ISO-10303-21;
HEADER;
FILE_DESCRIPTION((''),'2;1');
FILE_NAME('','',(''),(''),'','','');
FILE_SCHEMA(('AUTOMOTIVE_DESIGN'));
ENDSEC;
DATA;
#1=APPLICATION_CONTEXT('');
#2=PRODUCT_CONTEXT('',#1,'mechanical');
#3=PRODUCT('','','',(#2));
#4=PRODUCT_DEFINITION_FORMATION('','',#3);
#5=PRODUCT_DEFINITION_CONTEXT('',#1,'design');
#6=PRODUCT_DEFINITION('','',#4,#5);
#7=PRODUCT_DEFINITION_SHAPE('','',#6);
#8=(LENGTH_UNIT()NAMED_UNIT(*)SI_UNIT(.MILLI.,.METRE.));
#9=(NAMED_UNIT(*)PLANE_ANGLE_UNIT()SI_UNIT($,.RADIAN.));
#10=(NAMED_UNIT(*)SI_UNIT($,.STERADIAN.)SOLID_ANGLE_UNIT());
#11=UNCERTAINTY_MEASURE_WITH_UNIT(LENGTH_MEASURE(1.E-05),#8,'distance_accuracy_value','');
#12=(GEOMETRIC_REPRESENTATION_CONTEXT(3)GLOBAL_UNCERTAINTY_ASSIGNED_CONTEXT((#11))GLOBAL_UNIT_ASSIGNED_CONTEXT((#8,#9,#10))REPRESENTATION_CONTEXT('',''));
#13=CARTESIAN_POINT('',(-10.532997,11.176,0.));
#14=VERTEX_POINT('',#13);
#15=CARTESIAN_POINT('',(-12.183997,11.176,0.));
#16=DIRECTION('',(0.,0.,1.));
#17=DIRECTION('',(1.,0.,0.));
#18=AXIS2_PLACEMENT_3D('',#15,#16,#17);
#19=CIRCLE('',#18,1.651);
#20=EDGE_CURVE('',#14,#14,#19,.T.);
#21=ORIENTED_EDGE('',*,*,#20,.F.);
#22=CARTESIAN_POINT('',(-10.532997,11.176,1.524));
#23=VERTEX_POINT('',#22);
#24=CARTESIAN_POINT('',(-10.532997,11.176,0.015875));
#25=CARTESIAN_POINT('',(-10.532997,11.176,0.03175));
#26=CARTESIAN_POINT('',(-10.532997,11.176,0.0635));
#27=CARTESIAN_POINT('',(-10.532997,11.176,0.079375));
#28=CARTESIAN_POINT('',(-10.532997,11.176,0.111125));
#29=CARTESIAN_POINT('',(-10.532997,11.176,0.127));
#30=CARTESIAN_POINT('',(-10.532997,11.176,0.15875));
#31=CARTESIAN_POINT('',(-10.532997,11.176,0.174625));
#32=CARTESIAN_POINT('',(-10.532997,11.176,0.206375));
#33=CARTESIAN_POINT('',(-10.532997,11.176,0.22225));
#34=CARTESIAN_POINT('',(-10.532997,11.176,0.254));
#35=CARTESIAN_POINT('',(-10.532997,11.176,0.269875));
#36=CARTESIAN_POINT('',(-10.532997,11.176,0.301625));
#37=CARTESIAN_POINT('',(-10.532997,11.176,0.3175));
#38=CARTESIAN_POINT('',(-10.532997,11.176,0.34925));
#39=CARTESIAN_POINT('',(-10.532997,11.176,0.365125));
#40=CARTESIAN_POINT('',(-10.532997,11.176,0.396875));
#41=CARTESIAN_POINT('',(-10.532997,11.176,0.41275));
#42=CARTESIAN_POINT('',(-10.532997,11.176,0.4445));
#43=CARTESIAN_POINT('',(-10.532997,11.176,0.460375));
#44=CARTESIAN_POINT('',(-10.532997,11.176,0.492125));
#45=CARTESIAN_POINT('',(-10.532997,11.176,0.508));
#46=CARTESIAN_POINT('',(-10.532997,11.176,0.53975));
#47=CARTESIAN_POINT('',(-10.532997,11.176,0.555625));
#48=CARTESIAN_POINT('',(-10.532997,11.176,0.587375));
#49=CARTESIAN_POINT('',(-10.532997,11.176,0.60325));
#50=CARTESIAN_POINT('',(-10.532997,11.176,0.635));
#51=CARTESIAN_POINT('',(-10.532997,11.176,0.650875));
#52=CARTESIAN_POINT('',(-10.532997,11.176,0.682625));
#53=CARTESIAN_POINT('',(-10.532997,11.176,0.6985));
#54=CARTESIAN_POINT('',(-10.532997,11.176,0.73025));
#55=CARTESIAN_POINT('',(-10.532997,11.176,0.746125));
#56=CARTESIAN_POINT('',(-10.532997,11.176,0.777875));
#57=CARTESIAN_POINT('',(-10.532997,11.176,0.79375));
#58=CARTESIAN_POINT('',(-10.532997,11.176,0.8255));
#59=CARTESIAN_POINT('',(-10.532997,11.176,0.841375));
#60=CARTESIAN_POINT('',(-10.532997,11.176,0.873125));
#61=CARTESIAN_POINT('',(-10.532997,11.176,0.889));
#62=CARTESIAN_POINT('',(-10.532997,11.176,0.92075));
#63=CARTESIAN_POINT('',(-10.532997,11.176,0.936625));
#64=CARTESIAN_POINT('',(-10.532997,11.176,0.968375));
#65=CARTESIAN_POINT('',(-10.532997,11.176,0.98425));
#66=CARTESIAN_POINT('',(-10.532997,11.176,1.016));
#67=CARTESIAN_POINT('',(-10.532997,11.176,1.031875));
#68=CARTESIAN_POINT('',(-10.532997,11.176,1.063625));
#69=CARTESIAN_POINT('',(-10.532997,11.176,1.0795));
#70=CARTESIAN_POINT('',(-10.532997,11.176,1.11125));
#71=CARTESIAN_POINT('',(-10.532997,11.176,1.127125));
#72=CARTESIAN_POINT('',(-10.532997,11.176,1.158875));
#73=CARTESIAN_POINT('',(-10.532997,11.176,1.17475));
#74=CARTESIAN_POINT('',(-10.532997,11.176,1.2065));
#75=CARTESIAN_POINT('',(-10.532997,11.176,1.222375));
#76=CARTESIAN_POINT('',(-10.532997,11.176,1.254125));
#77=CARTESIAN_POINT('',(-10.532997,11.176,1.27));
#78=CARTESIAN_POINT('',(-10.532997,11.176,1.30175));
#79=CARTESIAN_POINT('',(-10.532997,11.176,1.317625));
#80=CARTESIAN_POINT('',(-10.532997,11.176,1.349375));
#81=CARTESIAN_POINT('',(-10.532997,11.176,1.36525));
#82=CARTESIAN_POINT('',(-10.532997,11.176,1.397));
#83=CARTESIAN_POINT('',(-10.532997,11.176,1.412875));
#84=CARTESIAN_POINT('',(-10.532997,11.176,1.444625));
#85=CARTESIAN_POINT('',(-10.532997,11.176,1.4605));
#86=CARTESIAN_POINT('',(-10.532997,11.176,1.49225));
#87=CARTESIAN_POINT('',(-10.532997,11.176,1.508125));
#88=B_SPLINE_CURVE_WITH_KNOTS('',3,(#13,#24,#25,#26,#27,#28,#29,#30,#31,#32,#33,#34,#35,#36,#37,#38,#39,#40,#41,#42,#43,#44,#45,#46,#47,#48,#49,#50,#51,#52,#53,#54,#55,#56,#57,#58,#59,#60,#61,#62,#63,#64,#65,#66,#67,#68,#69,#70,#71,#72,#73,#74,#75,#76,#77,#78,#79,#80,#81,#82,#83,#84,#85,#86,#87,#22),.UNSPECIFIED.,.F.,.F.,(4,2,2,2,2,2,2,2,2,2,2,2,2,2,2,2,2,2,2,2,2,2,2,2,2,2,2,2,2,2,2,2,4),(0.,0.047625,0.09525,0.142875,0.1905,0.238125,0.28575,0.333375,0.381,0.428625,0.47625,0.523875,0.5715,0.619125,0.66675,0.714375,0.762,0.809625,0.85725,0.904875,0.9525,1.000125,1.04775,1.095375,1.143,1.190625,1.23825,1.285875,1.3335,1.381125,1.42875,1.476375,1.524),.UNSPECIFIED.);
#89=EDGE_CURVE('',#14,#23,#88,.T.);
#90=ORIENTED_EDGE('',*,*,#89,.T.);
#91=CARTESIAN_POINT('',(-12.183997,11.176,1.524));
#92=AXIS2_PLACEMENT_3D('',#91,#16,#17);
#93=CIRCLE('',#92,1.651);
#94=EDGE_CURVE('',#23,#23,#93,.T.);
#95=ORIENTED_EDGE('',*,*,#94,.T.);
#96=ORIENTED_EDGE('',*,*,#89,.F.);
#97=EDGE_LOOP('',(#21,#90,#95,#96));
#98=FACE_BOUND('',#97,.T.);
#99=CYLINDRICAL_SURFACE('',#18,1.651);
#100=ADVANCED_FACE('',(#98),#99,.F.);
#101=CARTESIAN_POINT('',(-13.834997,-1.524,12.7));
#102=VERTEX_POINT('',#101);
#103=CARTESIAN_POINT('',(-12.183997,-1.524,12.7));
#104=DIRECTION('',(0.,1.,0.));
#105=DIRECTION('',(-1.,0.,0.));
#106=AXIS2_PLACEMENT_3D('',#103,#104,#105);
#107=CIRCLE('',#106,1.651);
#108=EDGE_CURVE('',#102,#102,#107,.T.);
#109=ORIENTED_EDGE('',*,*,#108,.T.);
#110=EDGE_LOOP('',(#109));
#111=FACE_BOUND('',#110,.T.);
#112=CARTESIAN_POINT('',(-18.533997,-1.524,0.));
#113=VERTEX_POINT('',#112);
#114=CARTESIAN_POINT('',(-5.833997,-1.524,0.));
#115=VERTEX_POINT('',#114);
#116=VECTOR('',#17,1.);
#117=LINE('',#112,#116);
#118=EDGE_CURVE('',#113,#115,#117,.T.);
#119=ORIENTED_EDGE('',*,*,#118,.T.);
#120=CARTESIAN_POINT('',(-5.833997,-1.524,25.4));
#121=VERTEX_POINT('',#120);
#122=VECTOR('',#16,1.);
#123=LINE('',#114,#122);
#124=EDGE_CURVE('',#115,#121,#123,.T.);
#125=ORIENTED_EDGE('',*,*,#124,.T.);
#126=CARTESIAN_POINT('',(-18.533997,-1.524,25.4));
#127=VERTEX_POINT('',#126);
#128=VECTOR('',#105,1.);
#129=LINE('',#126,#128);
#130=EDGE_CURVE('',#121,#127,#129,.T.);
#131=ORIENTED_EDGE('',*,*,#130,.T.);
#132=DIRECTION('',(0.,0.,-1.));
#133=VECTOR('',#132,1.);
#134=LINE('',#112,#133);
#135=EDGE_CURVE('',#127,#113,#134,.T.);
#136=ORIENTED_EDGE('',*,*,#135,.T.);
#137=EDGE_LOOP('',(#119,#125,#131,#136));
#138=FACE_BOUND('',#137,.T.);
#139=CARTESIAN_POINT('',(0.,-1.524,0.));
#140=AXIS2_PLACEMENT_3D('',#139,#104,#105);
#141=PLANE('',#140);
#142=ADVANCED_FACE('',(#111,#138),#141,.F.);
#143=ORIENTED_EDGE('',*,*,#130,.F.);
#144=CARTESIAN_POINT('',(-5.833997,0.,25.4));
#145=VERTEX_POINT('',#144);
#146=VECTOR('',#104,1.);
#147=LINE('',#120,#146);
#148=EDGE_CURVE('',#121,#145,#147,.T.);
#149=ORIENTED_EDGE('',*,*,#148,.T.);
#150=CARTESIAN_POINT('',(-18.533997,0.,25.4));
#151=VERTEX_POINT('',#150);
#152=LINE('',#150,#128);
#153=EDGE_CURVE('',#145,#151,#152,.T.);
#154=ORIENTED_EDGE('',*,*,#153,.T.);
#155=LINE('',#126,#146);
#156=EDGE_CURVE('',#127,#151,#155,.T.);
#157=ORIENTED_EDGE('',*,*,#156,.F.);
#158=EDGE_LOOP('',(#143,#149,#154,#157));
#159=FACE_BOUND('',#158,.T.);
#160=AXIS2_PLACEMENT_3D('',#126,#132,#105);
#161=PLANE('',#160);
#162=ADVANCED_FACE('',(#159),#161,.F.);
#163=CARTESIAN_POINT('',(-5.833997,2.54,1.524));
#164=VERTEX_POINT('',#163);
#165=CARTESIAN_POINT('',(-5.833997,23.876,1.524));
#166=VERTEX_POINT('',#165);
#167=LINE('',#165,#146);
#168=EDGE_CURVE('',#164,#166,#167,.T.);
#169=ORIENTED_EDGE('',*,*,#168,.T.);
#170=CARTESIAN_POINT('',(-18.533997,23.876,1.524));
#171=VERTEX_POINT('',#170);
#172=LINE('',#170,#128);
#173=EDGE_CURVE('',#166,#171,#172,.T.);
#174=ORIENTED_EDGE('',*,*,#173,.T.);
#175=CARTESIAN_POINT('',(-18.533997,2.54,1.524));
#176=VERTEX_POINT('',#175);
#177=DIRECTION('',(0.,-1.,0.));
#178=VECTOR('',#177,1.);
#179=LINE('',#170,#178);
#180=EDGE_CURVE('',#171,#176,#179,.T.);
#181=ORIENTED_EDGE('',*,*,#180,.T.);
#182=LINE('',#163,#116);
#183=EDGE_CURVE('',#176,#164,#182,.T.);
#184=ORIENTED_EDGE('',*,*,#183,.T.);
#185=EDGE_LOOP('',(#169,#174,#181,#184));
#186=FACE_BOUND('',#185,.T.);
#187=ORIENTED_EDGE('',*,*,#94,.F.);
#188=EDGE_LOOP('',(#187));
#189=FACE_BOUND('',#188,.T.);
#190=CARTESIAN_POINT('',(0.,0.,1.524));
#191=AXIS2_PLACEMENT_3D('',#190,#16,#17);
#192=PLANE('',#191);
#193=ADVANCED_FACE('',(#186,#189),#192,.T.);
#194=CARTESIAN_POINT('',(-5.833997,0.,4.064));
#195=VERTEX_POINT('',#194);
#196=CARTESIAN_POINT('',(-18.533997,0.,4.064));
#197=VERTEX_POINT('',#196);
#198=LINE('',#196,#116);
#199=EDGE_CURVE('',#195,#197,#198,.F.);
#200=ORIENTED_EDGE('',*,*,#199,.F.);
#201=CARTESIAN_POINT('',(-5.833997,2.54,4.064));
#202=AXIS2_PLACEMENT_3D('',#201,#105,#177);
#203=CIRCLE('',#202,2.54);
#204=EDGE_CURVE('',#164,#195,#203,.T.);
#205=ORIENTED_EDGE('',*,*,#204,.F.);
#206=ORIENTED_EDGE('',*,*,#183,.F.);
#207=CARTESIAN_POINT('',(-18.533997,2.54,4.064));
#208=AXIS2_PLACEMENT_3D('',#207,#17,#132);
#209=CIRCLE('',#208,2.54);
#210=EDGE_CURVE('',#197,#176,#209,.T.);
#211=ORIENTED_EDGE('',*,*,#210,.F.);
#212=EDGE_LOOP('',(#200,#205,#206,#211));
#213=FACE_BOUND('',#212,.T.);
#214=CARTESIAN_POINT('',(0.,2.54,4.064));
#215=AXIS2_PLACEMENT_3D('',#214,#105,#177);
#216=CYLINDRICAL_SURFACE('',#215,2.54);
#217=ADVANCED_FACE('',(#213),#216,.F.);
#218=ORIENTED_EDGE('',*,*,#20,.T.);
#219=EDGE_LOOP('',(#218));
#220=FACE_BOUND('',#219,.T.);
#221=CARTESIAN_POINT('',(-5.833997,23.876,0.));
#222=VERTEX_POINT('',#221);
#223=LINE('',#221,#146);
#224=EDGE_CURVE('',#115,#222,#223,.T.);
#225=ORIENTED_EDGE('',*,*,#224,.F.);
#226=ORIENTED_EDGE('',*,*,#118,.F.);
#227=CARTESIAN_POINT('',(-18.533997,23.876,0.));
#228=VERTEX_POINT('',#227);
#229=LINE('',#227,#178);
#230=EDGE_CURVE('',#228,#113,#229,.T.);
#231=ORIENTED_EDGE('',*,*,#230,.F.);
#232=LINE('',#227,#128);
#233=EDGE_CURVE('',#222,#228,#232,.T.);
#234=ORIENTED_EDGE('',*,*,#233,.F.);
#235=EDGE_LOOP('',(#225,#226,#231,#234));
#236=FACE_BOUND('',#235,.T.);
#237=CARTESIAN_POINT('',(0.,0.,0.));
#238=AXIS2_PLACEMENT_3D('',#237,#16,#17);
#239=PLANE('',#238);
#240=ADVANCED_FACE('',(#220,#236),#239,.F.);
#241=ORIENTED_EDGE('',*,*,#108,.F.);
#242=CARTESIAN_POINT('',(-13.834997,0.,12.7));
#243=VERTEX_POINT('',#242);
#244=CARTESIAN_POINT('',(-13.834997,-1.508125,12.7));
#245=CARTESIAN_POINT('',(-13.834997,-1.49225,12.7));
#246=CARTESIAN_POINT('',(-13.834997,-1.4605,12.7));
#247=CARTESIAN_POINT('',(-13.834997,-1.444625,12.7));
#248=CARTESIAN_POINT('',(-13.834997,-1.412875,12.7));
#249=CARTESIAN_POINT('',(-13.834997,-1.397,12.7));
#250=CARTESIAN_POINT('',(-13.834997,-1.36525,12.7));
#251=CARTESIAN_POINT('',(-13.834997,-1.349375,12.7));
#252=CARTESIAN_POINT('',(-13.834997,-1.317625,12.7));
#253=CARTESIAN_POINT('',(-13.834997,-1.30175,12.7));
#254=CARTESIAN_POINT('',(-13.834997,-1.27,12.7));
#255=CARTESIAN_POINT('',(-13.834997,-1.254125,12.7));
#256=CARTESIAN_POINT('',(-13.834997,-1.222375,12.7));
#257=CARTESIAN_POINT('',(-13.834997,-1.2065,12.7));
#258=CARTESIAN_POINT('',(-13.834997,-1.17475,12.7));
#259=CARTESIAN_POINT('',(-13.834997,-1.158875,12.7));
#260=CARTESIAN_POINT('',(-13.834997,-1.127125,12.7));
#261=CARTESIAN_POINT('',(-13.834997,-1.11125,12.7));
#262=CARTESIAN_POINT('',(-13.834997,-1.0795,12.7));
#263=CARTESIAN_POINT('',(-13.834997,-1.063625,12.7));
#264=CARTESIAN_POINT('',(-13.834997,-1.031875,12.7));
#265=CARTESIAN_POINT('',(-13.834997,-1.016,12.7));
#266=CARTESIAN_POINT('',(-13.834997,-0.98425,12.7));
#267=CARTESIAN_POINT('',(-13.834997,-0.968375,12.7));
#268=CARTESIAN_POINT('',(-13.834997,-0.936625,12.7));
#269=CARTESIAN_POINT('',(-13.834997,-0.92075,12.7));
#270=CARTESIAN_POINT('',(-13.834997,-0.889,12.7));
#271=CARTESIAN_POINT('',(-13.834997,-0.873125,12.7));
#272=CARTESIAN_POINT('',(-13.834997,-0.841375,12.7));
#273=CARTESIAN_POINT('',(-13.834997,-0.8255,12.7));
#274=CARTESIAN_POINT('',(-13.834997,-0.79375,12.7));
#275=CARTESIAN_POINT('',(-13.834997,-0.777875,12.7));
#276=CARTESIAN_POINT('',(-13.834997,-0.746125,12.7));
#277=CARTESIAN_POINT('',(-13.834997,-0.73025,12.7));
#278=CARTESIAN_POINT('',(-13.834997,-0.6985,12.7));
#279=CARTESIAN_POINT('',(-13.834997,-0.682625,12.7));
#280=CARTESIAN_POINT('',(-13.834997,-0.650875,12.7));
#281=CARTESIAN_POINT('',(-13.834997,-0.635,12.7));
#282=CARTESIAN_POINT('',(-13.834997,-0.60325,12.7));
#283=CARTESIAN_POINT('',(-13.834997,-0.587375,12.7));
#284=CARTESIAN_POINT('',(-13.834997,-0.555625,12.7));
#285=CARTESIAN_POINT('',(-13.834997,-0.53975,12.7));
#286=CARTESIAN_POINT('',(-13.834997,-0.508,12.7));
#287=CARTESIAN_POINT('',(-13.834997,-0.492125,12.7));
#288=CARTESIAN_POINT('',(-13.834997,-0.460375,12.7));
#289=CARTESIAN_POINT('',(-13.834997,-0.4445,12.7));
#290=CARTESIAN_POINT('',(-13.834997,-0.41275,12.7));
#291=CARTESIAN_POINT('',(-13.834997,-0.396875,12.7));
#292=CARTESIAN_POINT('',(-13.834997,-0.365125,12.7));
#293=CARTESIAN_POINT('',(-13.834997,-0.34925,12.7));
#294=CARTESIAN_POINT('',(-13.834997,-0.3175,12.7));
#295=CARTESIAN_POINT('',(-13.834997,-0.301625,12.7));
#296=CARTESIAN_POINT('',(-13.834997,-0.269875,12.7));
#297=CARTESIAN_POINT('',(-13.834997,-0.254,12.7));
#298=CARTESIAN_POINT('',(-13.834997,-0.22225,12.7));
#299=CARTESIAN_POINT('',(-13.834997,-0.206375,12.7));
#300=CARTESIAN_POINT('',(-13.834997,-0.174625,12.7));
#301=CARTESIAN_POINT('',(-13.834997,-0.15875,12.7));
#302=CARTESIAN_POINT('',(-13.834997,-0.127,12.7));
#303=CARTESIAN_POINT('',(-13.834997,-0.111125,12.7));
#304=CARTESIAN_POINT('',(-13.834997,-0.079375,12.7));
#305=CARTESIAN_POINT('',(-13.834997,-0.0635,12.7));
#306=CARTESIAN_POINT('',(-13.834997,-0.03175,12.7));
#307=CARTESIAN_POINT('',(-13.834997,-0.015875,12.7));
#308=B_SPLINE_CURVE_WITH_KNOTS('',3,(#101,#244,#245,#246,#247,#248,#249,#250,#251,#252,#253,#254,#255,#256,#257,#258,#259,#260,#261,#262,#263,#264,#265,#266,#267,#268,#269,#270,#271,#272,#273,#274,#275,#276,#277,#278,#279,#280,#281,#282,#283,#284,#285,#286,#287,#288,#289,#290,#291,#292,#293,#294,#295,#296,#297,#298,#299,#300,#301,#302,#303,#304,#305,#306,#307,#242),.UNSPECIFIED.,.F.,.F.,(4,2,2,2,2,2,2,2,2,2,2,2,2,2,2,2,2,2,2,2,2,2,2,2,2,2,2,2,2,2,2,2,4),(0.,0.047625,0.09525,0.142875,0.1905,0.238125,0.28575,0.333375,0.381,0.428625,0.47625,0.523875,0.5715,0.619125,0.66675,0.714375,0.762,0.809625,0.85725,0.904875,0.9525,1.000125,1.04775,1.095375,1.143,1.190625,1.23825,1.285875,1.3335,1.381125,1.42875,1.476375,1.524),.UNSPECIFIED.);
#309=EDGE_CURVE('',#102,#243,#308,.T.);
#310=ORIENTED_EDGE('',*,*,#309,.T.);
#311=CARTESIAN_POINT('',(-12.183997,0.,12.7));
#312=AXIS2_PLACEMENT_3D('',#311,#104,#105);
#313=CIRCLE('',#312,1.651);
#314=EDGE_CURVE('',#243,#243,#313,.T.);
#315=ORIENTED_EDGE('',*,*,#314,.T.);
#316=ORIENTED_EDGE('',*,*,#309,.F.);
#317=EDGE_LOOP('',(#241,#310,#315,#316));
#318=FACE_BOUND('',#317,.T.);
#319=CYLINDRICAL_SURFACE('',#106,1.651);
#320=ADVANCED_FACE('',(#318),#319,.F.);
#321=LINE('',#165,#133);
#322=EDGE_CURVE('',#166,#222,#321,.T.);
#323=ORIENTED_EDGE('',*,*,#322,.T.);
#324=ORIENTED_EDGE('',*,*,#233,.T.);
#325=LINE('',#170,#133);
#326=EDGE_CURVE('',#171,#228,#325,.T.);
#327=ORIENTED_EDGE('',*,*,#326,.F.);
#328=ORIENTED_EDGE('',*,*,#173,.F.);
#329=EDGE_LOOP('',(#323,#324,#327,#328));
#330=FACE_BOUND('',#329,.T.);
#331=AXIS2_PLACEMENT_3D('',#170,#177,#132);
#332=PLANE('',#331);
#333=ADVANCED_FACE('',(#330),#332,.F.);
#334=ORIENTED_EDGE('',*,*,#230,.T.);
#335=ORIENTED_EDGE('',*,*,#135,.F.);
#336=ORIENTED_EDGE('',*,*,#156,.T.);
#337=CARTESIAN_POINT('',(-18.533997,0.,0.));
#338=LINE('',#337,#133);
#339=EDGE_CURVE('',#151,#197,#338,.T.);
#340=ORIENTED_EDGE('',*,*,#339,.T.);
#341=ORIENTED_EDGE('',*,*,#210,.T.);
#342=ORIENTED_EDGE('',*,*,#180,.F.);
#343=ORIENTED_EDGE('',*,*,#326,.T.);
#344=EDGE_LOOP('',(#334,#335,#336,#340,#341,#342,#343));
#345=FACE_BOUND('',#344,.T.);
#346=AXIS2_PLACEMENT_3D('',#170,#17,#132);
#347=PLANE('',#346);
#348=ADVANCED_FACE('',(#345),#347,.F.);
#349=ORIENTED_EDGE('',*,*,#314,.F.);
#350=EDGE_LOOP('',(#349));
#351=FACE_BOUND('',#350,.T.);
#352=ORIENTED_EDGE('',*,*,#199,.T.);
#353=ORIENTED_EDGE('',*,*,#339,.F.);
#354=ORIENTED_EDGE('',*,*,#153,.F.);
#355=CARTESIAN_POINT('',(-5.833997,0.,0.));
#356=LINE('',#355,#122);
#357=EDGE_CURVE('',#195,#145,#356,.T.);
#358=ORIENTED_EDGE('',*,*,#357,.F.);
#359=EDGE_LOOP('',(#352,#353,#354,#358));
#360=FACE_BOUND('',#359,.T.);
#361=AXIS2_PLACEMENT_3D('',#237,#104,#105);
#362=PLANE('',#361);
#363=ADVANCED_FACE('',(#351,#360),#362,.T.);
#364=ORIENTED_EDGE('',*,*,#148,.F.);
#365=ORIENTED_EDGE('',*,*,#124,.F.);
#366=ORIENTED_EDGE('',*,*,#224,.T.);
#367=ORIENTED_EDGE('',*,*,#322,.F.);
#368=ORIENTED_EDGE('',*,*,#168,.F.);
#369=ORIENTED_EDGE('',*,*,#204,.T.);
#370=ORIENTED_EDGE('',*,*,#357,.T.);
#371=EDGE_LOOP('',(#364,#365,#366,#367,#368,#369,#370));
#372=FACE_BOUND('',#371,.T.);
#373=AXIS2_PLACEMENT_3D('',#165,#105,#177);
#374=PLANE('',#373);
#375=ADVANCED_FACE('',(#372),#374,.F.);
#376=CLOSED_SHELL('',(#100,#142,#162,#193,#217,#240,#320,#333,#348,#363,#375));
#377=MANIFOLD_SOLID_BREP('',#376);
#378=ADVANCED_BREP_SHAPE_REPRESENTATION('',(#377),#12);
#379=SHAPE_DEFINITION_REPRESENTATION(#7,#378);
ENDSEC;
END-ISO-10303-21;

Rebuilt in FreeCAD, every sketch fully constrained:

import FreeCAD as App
import Part
import Sketcher
from FreeCAD import Vector
Q = App.Units.Quantity


def edges_at(feature, points):
    """Names of the edges that pass closest to the given points."""
    edges = feature.Shape.Edges
    near = lambda p: min(range(len(edges)), key=lambda i: edges[i].distToShape(Part.Vertex(*p))[0])
    return sorted({f"Edge{near(p) + 1}" for p in points})


def add_polygon(sketch, points):
    """Adds a closed chain of lines whose ends are joined by coincident constraints."""
    first, n = sketch.GeometryCount, len(points)
    for a, b in zip(points, points[1:] + points[:1]):
        sketch.addGeometry(Part.LineSegment(App.Vector(*a, 0), App.Vector(*b, 0)), False)
    for i in range(n):
        sketch.addConstraint(Sketcher.Constraint("Coincident", first + i, 2, first + (i + 1) % n, 1))

doc = App.newDocument("Part")
body = doc.addObject("PartDesign::Body", "Body")

# Sketch on XY plane
sketch1 = body.newObject("Sketcher::SketchObject", "Sketch")
sketch1.AttachmentSupport = (doc.getObject("XY_Plane"), [""])
sketch1.MapMode = "FlatFace"
add_polygon(sketch1, [(-19, 24), (-19, 0), (-6, 0), (-6, 24)])  # lines 0-3
sketch1.addConstraint(Sketcher.Constraint("Vertical", 0))
sketch1.addConstraint(Sketcher.Constraint("Horizontal", 1))
sketch1.addConstraint(Sketcher.Constraint("Vertical", 2))
sketch1.addConstraint(Sketcher.Constraint("Horizontal", 3))
sketch1.addConstraint(Sketcher.Constraint("PointOnObject", 0, 2, -1))
sketch1.addConstraint(Sketcher.Constraint("DistanceX", 1, 1, 1, 2, Q("0.5 in")))
sketch1.addConstraint(Sketcher.Constraint("DistanceY", 0, 2, 0, 1, Q("0.94 in")))
sketch1.addConstraint(Sketcher.Constraint("DistanceX", 0, 2, -1, 1, 18.533997))
pad1 = body.newObject("PartDesign::Pad", "Pad")
pad1.Profile = sketch1
pad1.Length = Q("0.06 in")

# Sketch on XZ plane
sketch2 = body.newObject("Sketcher::SketchObject", "Sketch001")
sketch2.AttachmentSupport = (doc.getObject("XZ_Plane"), [""])
sketch2.MapMode = "FlatFace"
add_polygon(sketch2, [(-19, 25), (-19, 0), (-6, 0), (-6, 25)])  # lines 0-3
sketch2.addConstraint(Sketcher.Constraint("Vertical", 0))
sketch2.addConstraint(Sketcher.Constraint("Horizontal", 1))
sketch2.addConstraint(Sketcher.Constraint("Vertical", 2))
sketch2.addConstraint(Sketcher.Constraint("Horizontal", 3))
sketch2.addConstraint(Sketcher.Constraint("PointOnObject", 0, 2, -1))
sketch2.addConstraint(Sketcher.Constraint("DistanceY", 0, 2, 0, 1, Q("1 in")))
sketch2.addConstraint(Sketcher.Constraint("DistanceX", 1, 1, 1, 2, Q("0.5 in")))
sketch2.addConstraint(Sketcher.Constraint("DistanceX", 0, 2, -1, 1, 18.533997))
pad2 = body.newObject("PartDesign::Pad", "Pad001")
pad2.Profile = sketch2
pad2.Length = Q("0.06 in")
doc.recompute()

fillet = body.newObject("PartDesign::Fillet", "Fillet")
fillet.Base = (pad2, edges_at(pad2, [(-12.184, 0, 1.524)]))
fillet.Radius = Q("0.1 in")

# Sketch on XY plane
sketch3 = body.newObject("Sketcher::SketchObject", "Sketch002")
sketch3.AttachmentSupport = (doc.getObject("XY_Plane"), [""])
sketch3.MapMode = "FlatFace"
sketch3.AttachmentOffset = App.Placement(Vector(0, 0, 0.06 * 25.4), App.Rotation())
sketch3.addGeometry(Part.Circle(Vector(-12.2, 11.2, 0), Vector(0, 0, 1), 1.7), False)
sketch3.addConstraint(Sketcher.Constraint("Diameter", 0, Q("0.13 in")))
sketch3.addConstraint(Sketcher.Constraint("DistanceY", -1, 1, 0, 3, Q("0.44 in")))
sketch3.addConstraint(Sketcher.Constraint("DistanceX", 0, 3, -1, 1, 12.183997))
pocket1 = body.newObject("PartDesign::Pocket", "Pocket")
pocket1.Profile = sketch3
pocket1.Type = "ThroughAll"

# Sketch on XZ plane
sketch4 = body.newObject("Sketcher::SketchObject", "Sketch003")
sketch4.AttachmentSupport = (doc.getObject("XZ_Plane"), [""])
sketch4.MapMode = "FlatFace"
sketch4.addGeometry(Part.Circle(Vector(-12.2, 12.7, 0), Vector(0, 0, 1), 1.7), False)
sketch4.addConstraint(Sketcher.Constraint("Diameter", 0, Q("0.13 in")))
sketch4.addConstraint(Sketcher.Constraint("DistanceY", -1, 1, 0, 3, Q("0.5 in")))
sketch4.addConstraint(Sketcher.Constraint("DistanceX", 0, 3, -1, 1, 12.183997))
pocket2 = body.newObject("PartDesign::Pocket", "Pocket001")
pocket2.Profile = sketch4
pocket2.Length = Q("0.06 in")
pocket2.Reversed = True

doc.recompute()
